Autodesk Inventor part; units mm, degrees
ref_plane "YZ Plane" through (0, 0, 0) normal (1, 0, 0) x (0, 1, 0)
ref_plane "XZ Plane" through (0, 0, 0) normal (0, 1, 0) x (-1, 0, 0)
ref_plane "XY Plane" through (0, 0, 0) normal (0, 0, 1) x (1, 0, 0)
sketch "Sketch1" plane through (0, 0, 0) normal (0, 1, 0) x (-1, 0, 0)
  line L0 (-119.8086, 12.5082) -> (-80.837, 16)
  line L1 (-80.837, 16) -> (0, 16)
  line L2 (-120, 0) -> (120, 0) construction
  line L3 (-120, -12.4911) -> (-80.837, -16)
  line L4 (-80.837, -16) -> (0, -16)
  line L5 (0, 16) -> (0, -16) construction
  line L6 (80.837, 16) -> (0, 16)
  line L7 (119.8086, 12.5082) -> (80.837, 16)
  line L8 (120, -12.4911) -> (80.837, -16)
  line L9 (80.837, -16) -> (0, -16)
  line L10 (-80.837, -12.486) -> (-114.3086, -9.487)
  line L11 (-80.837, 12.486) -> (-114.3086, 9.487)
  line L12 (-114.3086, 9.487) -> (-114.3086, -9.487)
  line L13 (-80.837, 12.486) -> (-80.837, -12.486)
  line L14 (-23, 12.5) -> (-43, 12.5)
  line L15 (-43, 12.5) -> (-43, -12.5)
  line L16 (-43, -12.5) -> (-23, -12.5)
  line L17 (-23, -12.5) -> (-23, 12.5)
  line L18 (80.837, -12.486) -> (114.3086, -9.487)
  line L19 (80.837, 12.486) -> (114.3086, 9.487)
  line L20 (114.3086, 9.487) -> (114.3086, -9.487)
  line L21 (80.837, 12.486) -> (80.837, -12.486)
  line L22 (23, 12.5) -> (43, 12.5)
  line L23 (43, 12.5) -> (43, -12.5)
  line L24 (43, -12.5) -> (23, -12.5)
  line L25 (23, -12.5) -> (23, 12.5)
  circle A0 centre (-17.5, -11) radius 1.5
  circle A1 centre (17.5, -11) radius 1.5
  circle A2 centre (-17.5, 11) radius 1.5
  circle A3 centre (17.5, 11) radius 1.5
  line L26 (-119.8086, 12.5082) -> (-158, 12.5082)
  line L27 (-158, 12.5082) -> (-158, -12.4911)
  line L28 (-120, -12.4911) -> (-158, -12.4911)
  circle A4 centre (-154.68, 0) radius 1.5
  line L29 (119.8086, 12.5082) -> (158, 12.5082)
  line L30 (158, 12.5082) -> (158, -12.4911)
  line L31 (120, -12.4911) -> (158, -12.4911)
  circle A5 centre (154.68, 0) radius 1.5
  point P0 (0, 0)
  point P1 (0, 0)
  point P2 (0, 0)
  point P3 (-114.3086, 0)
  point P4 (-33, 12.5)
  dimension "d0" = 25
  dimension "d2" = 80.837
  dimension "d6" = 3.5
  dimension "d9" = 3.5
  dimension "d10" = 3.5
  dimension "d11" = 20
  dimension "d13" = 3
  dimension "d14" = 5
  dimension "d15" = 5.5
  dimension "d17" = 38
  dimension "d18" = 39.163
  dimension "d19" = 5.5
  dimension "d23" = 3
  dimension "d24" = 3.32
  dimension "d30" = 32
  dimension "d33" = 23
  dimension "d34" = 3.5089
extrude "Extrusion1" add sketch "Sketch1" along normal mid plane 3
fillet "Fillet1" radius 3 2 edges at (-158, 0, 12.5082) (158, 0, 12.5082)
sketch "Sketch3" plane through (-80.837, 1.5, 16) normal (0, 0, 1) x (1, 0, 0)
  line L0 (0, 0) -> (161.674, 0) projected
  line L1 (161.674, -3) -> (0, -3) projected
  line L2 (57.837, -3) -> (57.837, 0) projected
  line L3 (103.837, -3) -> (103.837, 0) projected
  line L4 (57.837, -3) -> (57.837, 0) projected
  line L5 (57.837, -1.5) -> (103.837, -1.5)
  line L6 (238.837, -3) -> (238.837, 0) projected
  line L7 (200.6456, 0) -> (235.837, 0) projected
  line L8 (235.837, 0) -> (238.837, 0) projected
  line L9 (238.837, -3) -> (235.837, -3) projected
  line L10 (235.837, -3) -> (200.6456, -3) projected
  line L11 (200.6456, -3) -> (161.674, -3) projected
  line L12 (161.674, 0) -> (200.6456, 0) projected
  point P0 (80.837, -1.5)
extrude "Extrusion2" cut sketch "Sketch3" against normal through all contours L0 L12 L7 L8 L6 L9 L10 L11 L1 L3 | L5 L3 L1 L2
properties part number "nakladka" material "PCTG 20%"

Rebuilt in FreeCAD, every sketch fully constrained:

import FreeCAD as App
import Part
import Sketcher
Q = App.Units.Quantity


def edges_at(feature, points):
    """Names of the edges that pass closest to the given points."""
    edges = feature.Shape.Edges
    near = lambda p: min(range(len(edges)), key=lambda i: edges[i].distToShape(Part.Vertex(*p))[0])
    return sorted({f"Edge{near(p) + 1}" for p in points})

doc = App.newDocument("Part")
body = doc.addObject("PartDesign::Body", "Body")

sketch1 = doc.addObject("Sketcher::SketchObject", "Sketch")
body.addObject(sketch1)
sketch1.AttachmentSupport = (doc.XZ_Plane, [""])
sketch1.MapMode = "FlatFace"
sketch1.addGeometry([
    Part.LineSegment(App.Vector(80.8, 16, 0), App.Vector(119.8, 12.5, 0)),
    Part.LineSegment(App.Vector(119.8, 12.5, 0), App.Vector(158, 12.5, 0)),
    Part.LineSegment(App.Vector(158, 12.5, 0), App.Vector(158, -12.5, 0)),
    Part.LineSegment(App.Vector(158, -12.5, 0), App.Vector(120, -12.5, 0)),
    Part.LineSegment(App.Vector(120, -12.5, 0), App.Vector(80.8, -16, 0)),
    Part.LineSegment(App.Vector(80.8, -16, 0), App.Vector(-80.8, -16, 0)),
    Part.LineSegment(App.Vector(-80.8, -16, 0), App.Vector(-120, -12.5, 0)),
    Part.LineSegment(App.Vector(-120, -12.5, 0), App.Vector(-158, -12.5, 0)),
    Part.LineSegment(App.Vector(-158, -12.5, 0), App.Vector(-158, 12.5, 0)),
    Part.LineSegment(App.Vector(-158, 12.5, 0), App.Vector(-119.8, 12.5, 0)),
    Part.LineSegment(App.Vector(-119.8, 12.5, 0), App.Vector(-80.8, 16, 0)),
    Part.LineSegment(App.Vector(-80.8, 16, 0), App.Vector(80.8, 16, 0)),
    Part.Circle(App.Vector(17.5, -11, 0), App.Vector(0, 0, 1), 1.5),
    Part.Circle(App.Vector(-17.5, -11, 0), App.Vector(0, 0, 1), 1.5),
    Part.Circle(App.Vector(154.7, 0, 0), App.Vector(0, 0, 1), 1.5),
    Part.LineSegment(App.Vector(80.8, 12.5, 0), App.Vector(80.8, -12.5, 0)),
    Part.LineSegment(App.Vector(80.8, -12.5, 0), App.Vector(114.3, -9.5, 0)),
    Part.LineSegment(App.Vector(114.3, -9.5, 0), App.Vector(114.3, 9.5, 0)),
    Part.LineSegment(App.Vector(114.3, 9.5, 0), App.Vector(80.8, 12.5, 0)),
    Part.LineSegment(App.Vector(43, 12.5, 0), App.Vector(23, 12.5, 0)),
    Part.LineSegment(App.Vector(23, 12.5, 0), App.Vector(23, -12.5, 0)),
    Part.LineSegment(App.Vector(23, -12.5, 0), App.Vector(43, -12.5, 0)),
    Part.LineSegment(App.Vector(43, -12.5, 0), App.Vector(43, 12.5, 0)),
    Part.Circle(App.Vector(17.5, 11, 0), App.Vector(0, 0, 1), 1.5),
    Part.LineSegment(App.Vector(-23, -12.5, 0), App.Vector(-23, 12.5, 0)),
    Part.LineSegment(App.Vector(-23, 12.5, 0), App.Vector(-43, 12.5, 0)),
    Part.LineSegment(App.Vector(-43, 12.5, 0), App.Vector(-43, -12.5, 0)),
    Part.LineSegment(App.Vector(-43, -12.5, 0), App.Vector(-23, -12.5, 0)),
    Part.LineSegment(App.Vector(-114.3, -9.5, 0), App.Vector(-80.8, -12.5, 0)),
    Part.LineSegment(App.Vector(-80.8, -12.5, 0), App.Vector(-80.8, 12.5, 0)),
    Part.LineSegment(App.Vector(-80.8, 12.5, 0), App.Vector(-114.3, 9.5, 0)),
    Part.LineSegment(App.Vector(-114.3, 9.5, 0), App.Vector(-114.3, -9.5, 0)),
    Part.Circle(App.Vector(-154.7, 0, 0), App.Vector(0, 0, 1), 1.5),
    Part.Circle(App.Vector(-17.5, 11, 0), App.Vector(0, 0, 1), 1.5),
], False)
sketch1.addConstraint([
    Sketcher.Constraint("Coincident", 0, 2, 1, 1),
    Sketcher.Constraint("Coincident", 1, 2, 2, 1),
    Sketcher.Constraint("Coincident", 2, 2, 3, 1),
    Sketcher.Constraint("Coincident", 3, 2, 4, 1),
    Sketcher.Constraint("Coincident", 4, 2, 5, 1),
    Sketcher.Constraint("Coincident", 5, 2, 6, 1),
    Sketcher.Constraint("Coincident", 6, 2, 7, 1),
    Sketcher.Constraint("Coincident", 7, 2, 8, 1),
    Sketcher.Constraint("Coincident", 8, 2, 9, 1),
    Sketcher.Constraint("Coincident", 9, 2, 10, 1),
    Sketcher.Constraint("Coincident", 10, 2, 11, 1),
    Sketcher.Constraint("Coincident", 11, 2, 0, 1),
    Sketcher.Constraint("Coincident", 15, 2, 16, 1),
    Sketcher.Constraint("Coincident", 16, 2, 17, 1),
    Sketcher.Constraint("Coincident", 17, 2, 18, 1),
    Sketcher.Constraint("Coincident", 18, 2, 15, 1),
    Sketcher.Constraint("Coincident", 19, 2, 20, 1),
    Sketcher.Constraint("Coincident", 20, 2, 21, 1),
    Sketcher.Constraint("Coincident", 21, 2, 22, 1),
    Sketcher.Constraint("Coincident", 22, 2, 19, 1),
    Sketcher.Constraint("Coincident", 24, 2, 25, 1),
    Sketcher.Constraint("Coincident", 25, 2, 26, 1),
    Sketcher.Constraint("Coincident", 26, 2, 27, 1),
    Sketcher.Constraint("Coincident", 27, 2, 24, 1),
    Sketcher.Constraint("Coincident", 28, 2, 29, 1),
    Sketcher.Constraint("Coincident", 29, 2, 30, 1),
    Sketcher.Constraint("Coincident", 30, 2, 31, 1),
    Sketcher.Constraint("Coincident", 31, 2, 28, 1),
    Sketcher.Constraint("Horizontal", 1),
    Sketcher.Constraint("Vertical", 2),
    Sketcher.Constraint("Horizontal", 3),
    Sketcher.Constraint("Horizontal", 5),
    Sketcher.Constraint("Horizontal", 7),
    Sketcher.Constraint("Vertical", 8),
    Sketcher.Constraint("Horizontal", 9),
    Sketcher.Constraint("Horizontal", 11),
    Sketcher.Constraint("Vertical", 15),
    Sketcher.Constraint("Vertical", 17),
    Sketcher.Constraint("Horizontal", 19),
    Sketcher.Constraint("Vertical", 20),
    Sketcher.Constraint("Horizontal", 21),
    Sketcher.Constraint("Vertical", 22),
    Sketcher.Constraint("Vertical", 24),
    Sketcher.Constraint("Horizontal", 25),
    Sketcher.Constraint("Vertical", 26),
    Sketcher.Constraint("Horizontal", 27),
    Sketcher.Constraint("Vertical", 29),
    Sketcher.Constraint("Vertical", 31),
    Sketcher.Constraint("Equal", 12, 13),
    Sketcher.Constraint("Equal", 13, 14),
    Sketcher.Constraint("Equal", 14, 23),
    Sketcher.Constraint("Equal", 23, 32),
    Sketcher.Constraint("Equal", 32, 33),
    Sketcher.Constraint("Symmetric", 13, 3, 23, 3, -1, 1),
    Sketcher.Constraint("Symmetric", 14, 3, 32, 3, -1, 1),
    Sketcher.Constraint("Symmetric", 12, 3, 33, 3, -1, 1),
    Sketcher.Constraint("Symmetric", 4, 2, 10, 2, -1, 1),
    Sketcher.Constraint("Symmetric", 20, 2, 24, 2, -1, 1),
    Sketcher.Constraint("Symmetric", 22, 2, 26, 2, -1, 1),
    Sketcher.Constraint("Symmetric", 18, 2, 28, 2, -1, 1),
    Sketcher.Constraint("Symmetric", 16, 2, 30, 2, -1, 1),
    Sketcher.Constraint("Symmetric", 12, 3, 13, 3, -2),
    Sketcher.Constraint("Symmetric", 3, 2, 6, 2, -2),
    Sketcher.Constraint("Symmetric", 1, 2, 8, 2, -2),
    Sketcher.Constraint("PointOnObject", 14, 3, -1),
    Sketcher.Constraint("Parallel", 0, 6),
    Sketcher.Constraint("Parallel", 4, 10),
    Sketcher.Constraint("Parallel", 10, 16),
    Sketcher.Constraint("Parallel", 6, 18),
    Sketcher.Constraint("Parallel", 18, 28),
    Sketcher.Constraint("Parallel", 16, 30),
    Sketcher.Constraint("Horizontal", 22, 2, 24, 2),
    Sketcher.Constraint("Horizontal", 15, 2, 28, 2),
    Sketcher.Constraint("Horizontal", 17, 2, 30, 2),
    Sketcher.Constraint("Vertical", 4, 2, 11, 2),
    Sketcher.Constraint("Vertical", 11, 2, 15, 2),
    Sketcher.Constraint("Diameter", 12, Q("3 mm")),
    Sketcher.Constraint("DistanceX", 3, 2, 3, 1, Q("38 mm")),
    Sketcher.Constraint("DistanceX", 19, 2, 19, 1, Q("20 mm")),
    Sketcher.Constraint("DistanceY", 20, 2, 20, 1, Q("25 mm")),
    Sketcher.Constraint("DistanceX", -1, 1, 19, 2, Q("23 mm")),
    Sketcher.Constraint("DistanceY", 4, 2, 12, 3, Q("5 mm")),
    Sketcher.Constraint("DistanceY", 5, 2, 10, 2, Q("32 mm")),
    Sketcher.Constraint("DistanceX", 16, 2, 0, 2, Q("5.5 mm")),
    Sketcher.Constraint("DistanceX", 23, 3, 19, 2, Q("5.5 mm")),
    Sketcher.Constraint("DistanceX", 14, 3, 1, 2, Q("3.32 mm")),
    Sketcher.Constraint("DistanceX", -1, 1, 4, 2, Q("80.837 mm")),
    Sketcher.Constraint("DistanceX", -1, 1, 1, 2, Q("158 mm")),
    Sketcher.Constraint("DistanceY", 4, 2, 3, 2, Q("3.509 mm")),
    Sketcher.Constraint("DistanceY", 15, 2, 15, 1, Q("24.972 mm")),
    Sketcher.Constraint("DistanceY", 17, 1, 17, 2, Q("18.974 mm")),
])
pad1 = doc.addObject("PartDesign::Pad", "Pad")
body.addObject(pad1)
pad1.Profile = sketch1
pad1.Length = 3
pad1.Midplane = True
doc.recompute()

fillet = doc.addObject("PartDesign::Fillet", "Fillet")
body.addObject(fillet)
fillet.Base = (pad1, edges_at(pad1, [(-158, 0, 12.508), (158, 0, 12.508)]))
fillet.Radius = 3

sketch2 = doc.addObject("Sketcher::SketchObject", "Sketch001")
body.addObject(sketch2)
sketch2.AttachmentSupport = (doc.XY_Plane, [""])
sketch2.MapMode = "FlatFace"
sketch2.AttachmentOffset = App.Placement(App.Vector(0, 0, 16), App.Rotation())
sketch2.addGeometry([
    Part.LineSegment(App.Vector(23, 1.5, 0), App.Vector(23, 0, 0)),
    Part.LineSegment(App.Vector(23, 0, 0), App.Vector(-23, 0, 0)),
    Part.LineSegment(App.Vector(-23, 0, 0), App.Vector(-23, -1.5, 0)),
    Part.LineSegment(App.Vector(-23, -1.5, 0), App.Vector(158, -1.5, 0)),
    Part.LineSegment(App.Vector(158, -1.5, 0), App.Vector(158, 1.5, 0)),
    Part.LineSegment(App.Vector(158, 1.5, 0), App.Vector(23, 1.5, 0)),
], False)
sketch2.addConstraint([
    Sketcher.Constraint("Coincident", 0, 2, 1, 1),
    Sketcher.Constraint("Coincident", 1, 2, 2, 1),
    Sketcher.Constraint("Coincident", 2, 2, 3, 1),
    Sketcher.Constraint("Coincident", 3, 2, 4, 1),
    Sketcher.Constraint("Coincident", 4, 2, 5, 1),
    Sketcher.Constraint("Coincident", 5, 2, 0, 1),
    Sketcher.Constraint("Vertical", 0),
    Sketcher.Constraint("Horizontal", 1),
    Sketcher.Constraint("Vertical", 2),
    Sketcher.Constraint("Horizontal", 3),
    Sketcher.Constraint("Vertical", 4),
    Sketcher.Constraint("Horizontal", 5),
    Sketcher.Constraint("Symmetric", 0, 2, 1, 2, -1, 1),
    Sketcher.Constraint("Equal", 0, 2),
    Sketcher.Constraint("DistanceX", 1, 2, 1, 1, Q("46 mm")),
    Sketcher.Constraint("DistanceX", 3, 1, 3, 2, Q("181 mm")),
    Sketcher.Constraint("DistanceY", 4, 1, 4, 2, Q("3 mm")),
])
pocket1 = doc.addObject("PartDesign::Pocket", "Pocket")
body.addObject(pocket1)
pocket1.Profile = sketch2
pocket1.Type = "ThroughAll"

doc.recompute()
